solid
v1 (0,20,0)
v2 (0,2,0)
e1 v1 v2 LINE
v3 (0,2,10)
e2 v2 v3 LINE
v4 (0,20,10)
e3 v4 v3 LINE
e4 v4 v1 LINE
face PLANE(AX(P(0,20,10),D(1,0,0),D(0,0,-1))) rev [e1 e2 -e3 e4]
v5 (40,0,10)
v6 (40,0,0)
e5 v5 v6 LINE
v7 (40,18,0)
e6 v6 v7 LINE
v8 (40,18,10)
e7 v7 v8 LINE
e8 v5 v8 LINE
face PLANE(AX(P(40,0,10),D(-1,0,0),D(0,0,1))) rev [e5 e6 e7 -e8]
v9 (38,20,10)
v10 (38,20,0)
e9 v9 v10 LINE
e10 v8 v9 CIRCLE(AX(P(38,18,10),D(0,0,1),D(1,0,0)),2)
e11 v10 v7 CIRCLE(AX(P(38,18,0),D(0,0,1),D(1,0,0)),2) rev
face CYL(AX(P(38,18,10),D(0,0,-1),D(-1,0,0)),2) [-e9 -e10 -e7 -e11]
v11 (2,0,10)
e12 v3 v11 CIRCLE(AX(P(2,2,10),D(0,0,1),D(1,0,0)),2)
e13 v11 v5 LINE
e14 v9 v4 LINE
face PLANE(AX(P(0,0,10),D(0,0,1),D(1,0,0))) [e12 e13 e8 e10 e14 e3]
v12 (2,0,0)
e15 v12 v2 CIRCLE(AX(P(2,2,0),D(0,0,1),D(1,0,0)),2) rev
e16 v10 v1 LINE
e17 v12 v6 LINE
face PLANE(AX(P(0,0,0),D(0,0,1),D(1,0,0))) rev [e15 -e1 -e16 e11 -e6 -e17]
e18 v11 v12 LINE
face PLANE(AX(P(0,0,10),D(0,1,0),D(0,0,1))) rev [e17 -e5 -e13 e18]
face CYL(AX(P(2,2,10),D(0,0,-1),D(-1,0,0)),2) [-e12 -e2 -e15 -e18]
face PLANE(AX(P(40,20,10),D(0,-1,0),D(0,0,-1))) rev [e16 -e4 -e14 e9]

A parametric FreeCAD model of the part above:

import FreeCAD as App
import Part
import Sketcher
from FreeCAD import Vector


def edges_at(feature, points):
    """Names of the edges that pass closest to the given points."""
    edges = feature.Shape.Edges
    near = lambda p: min(range(len(edges)), key=lambda i: edges[i].distToShape(Part.Vertex(*p))[0])
    return sorted({f"Edge{near(p) + 1}" for p in points})

doc = App.newDocument("Part")
params = doc.addObject("Spreadsheet::Sheet", "Params")
for row, (alias, value) in enumerate([
    ("sketch1_width", "40 mm"),
    ("sketch1_height", "20 mm"),
    ("pad1_length", "10 mm"),
    ("fillet_radius", "2 mm"),
], start=1):
    params.set(f"A{row}", alias)
    params.set(f"B{row}", "=" + value)
    params.setAlias(f"B{row}", alias)

body = doc.addObject("PartDesign::Body", "Body")

sketch1 = body.newObject("Sketcher::SketchObject", "Sketch")
sketch1.AttachmentSupport = (doc.getObject("XY_Plane"), [""])
sketch1.MapMode = "FlatFace"
sketch1.addGeometry(Part.LineSegment(Vector(0, 20, 0), Vector(0, 0, 0)), False)
sketch1.addGeometry(Part.LineSegment(Vector(0, 0, 0), Vector(40, 0, 0)), False)
sketch1.addGeometry(Part.LineSegment(Vector(40, 0, 0), Vector(40, 20, 0)), False)
sketch1.addGeometry(Part.LineSegment(Vector(40, 20, 0), Vector(0, 20, 0)), False)
sketch1.addConstraint(Sketcher.Constraint("Coincident", 0, 2, 1, 1))
sketch1.addConstraint(Sketcher.Constraint("Coincident", 1, 2, 2, 1))
sketch1.addConstraint(Sketcher.Constraint("Coincident", 2, 2, 3, 1))
sketch1.addConstraint(Sketcher.Constraint("Coincident", 3, 2, 0, 1))
sketch1.addConstraint(Sketcher.Constraint("Vertical", 0))
sketch1.addConstraint(Sketcher.Constraint("Horizontal", 1))
sketch1.addConstraint(Sketcher.Constraint("Vertical", 2))
sketch1.addConstraint(Sketcher.Constraint("Horizontal", 3))
sketch1.addConstraint(Sketcher.Constraint("Coincident", 0, 2, -1, 1))
sketch1.addConstraint(Sketcher.Constraint("DistanceX", 1, 1, 1, 2, 40.0))
sketch1.addConstraint(Sketcher.Constraint("DistanceY", 0, 2, 0, 1, 20.0))
sketch1.setExpression("Constraints[9]", "Params.sketch1_width")
sketch1.setExpression("Constraints[10]", "Params.sketch1_height")
pad1 = body.newObject("PartDesign::Pad", "Pad")
pad1.Profile = sketch1
pad1.setExpression("Length", "Params.pad1_length")
doc.recompute()

fillet = body.newObject("PartDesign::Fillet", "Fillet")
fillet.Base = (pad1, edges_at(pad1, [(40, 20, 5), (0, 0, 5)]))
fillet.setExpression("Radius", "Params.fillet_radius")

doc.recompute()
